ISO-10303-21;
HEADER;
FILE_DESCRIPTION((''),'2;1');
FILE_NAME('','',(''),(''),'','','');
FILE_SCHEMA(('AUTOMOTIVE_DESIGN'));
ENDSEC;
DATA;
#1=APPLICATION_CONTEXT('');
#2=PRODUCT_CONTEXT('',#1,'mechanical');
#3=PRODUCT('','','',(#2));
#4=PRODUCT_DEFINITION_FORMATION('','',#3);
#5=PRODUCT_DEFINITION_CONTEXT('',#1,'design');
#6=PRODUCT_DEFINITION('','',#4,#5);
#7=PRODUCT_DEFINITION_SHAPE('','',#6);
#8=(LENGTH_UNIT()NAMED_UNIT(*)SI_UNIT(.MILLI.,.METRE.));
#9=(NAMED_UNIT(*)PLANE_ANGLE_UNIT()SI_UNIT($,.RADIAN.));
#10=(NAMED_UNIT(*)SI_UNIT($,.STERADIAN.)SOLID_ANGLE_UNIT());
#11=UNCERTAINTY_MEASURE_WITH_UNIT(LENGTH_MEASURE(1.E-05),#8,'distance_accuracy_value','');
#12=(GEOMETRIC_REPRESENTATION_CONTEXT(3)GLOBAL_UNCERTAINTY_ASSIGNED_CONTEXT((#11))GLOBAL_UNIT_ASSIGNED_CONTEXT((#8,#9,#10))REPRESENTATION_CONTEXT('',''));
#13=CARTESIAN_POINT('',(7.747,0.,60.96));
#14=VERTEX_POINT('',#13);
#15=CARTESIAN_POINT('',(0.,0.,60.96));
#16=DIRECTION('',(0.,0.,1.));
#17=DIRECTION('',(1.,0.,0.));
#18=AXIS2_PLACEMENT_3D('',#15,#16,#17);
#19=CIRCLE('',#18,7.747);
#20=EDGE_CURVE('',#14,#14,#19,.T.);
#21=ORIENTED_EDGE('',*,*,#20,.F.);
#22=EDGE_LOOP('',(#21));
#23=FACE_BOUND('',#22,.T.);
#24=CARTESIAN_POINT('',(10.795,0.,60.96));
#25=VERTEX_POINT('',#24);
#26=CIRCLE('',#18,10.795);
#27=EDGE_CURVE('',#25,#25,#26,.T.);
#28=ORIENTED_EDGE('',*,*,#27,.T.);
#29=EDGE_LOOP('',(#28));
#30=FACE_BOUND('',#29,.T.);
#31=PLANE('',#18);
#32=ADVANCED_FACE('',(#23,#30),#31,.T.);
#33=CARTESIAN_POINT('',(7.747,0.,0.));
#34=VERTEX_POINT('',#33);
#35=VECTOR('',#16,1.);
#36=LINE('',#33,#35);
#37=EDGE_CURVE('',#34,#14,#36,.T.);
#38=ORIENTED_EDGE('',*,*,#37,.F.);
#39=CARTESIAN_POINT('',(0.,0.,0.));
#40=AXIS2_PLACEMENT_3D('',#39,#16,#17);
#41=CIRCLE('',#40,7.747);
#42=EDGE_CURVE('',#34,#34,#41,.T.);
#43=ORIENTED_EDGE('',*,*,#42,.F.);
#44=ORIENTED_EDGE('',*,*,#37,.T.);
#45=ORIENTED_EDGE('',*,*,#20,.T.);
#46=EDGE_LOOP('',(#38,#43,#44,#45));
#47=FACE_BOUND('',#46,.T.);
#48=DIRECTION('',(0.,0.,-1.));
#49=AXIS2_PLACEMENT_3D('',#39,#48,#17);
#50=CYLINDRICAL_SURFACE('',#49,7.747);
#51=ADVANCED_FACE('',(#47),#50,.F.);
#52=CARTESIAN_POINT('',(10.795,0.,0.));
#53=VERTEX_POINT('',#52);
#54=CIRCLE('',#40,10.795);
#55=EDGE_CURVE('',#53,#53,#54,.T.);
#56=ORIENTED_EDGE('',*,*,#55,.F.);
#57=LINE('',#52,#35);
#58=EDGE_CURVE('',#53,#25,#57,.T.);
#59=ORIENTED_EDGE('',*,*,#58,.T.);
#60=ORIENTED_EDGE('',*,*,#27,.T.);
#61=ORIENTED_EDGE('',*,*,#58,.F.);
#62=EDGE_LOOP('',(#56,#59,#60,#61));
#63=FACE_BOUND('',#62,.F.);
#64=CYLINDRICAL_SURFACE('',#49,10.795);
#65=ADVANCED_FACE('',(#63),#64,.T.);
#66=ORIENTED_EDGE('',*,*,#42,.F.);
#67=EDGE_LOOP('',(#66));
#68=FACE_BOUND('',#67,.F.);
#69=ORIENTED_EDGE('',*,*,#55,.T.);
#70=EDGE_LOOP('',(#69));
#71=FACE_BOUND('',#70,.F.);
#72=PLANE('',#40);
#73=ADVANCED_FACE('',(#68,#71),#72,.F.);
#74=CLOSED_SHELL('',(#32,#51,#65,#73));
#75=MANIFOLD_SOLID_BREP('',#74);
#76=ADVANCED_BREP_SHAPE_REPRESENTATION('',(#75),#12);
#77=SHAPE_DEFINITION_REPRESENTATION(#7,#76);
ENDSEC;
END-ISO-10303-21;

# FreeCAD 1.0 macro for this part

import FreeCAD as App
import Part
import Sketcher
Q = App.Units.Quantity

doc = App.newDocument("Part")
body = doc.addObject("PartDesign::Body", "Body")

# Sketch on XY plane
sketch1 = doc.addObject("Sketcher::SketchObject", "Sketch")
body.addObject(sketch1)
sketch1.AttachmentSupport = (doc.XY_Plane, [""])
sketch1.MapMode = "FlatFace"
sketch1.addGeometry(Part.Circle(App.Vector(0, 0, 0), App.Vector(0, 0, 1), 11), False)
sketch1.addGeometry(Part.Circle(App.Vector(0, 0, 0), App.Vector(0, 0, 1), 8), False)
sketch1.addConstraint(Sketcher.Constraint("Coincident", 0, 3, -1, 1))
sketch1.addConstraint(Sketcher.Constraint("Coincident", 1, 3, -1, 1))
sketch1.addConstraint(Sketcher.Constraint("Diameter", 0, Q("0.85 in")))
sketch1.addConstraint(Sketcher.Constraint("Diameter", 1, Q("0.61 in")))
pad1 = doc.addObject("PartDesign::Pad", "Pad")
body.addObject(pad1)
pad1.Profile = sketch1
pad1.Length = Q("2.4 in")

doc.recompute()
